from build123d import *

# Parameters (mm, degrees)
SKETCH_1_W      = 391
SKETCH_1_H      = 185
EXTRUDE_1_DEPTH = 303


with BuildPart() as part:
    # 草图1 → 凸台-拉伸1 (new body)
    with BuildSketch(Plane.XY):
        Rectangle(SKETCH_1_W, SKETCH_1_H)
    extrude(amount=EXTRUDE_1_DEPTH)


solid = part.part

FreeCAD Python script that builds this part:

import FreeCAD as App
import Part
import Sketcher
from FreeCAD import Vector
Q = App.Units.Quantity


def add_polygon(sketch, points):
    """Adds a closed chain of lines whose ends are joined by coincident constraints."""
    first, n = sketch.GeometryCount, len(points)
    for a, b in zip(points, points[1:] + points[:1]):
        sketch.addGeometry(Part.LineSegment(App.Vector(*a, 0), App.Vector(*b, 0)), False)
    for i in range(n):
        sketch.addConstraint(Sketcher.Constraint("Coincident", first + i, 2, first + (i + 1) % n, 1))

doc = App.newDocument("Part")
body = doc.addObject("PartDesign::Body", "Body")

sketch1 = doc.addObject("Sketcher::SketchObject", "Sketch")
body.addObject(sketch1)
sketch1.AttachmentSupport = (doc.XY_Plane, [""])
sketch1.MapMode = "FlatFace"
add_polygon(sketch1, [(-196, 92), (-196, -92), (196, -92), (196, 92)])
sketch1.addConstraint(Sketcher.Constraint("Vertical", 0))
sketch1.addConstraint(Sketcher.Constraint("Horizontal", 1))
sketch1.addConstraint(Sketcher.Constraint("Vertical", 2))
sketch1.addConstraint(Sketcher.Constraint("Horizontal", 3))
sketch1.addConstraint(Sketcher.Constraint("Symmetric", 0, 2, 2, 2, -1, 1))
sketch1.addConstraint(Sketcher.Constraint("DistanceX", 1, 1, 1, 2, Q("391 mm")))
sketch1.addConstraint(Sketcher.Constraint("DistanceY", 0, 2, 0, 1, Q("185 mm")))
pad1 = doc.addObject("PartDesign::Pad", "Pad")
body.addObject(pad1)
pad1.Profile = sketch1
pad1.Length = 303

doc.recompute()
